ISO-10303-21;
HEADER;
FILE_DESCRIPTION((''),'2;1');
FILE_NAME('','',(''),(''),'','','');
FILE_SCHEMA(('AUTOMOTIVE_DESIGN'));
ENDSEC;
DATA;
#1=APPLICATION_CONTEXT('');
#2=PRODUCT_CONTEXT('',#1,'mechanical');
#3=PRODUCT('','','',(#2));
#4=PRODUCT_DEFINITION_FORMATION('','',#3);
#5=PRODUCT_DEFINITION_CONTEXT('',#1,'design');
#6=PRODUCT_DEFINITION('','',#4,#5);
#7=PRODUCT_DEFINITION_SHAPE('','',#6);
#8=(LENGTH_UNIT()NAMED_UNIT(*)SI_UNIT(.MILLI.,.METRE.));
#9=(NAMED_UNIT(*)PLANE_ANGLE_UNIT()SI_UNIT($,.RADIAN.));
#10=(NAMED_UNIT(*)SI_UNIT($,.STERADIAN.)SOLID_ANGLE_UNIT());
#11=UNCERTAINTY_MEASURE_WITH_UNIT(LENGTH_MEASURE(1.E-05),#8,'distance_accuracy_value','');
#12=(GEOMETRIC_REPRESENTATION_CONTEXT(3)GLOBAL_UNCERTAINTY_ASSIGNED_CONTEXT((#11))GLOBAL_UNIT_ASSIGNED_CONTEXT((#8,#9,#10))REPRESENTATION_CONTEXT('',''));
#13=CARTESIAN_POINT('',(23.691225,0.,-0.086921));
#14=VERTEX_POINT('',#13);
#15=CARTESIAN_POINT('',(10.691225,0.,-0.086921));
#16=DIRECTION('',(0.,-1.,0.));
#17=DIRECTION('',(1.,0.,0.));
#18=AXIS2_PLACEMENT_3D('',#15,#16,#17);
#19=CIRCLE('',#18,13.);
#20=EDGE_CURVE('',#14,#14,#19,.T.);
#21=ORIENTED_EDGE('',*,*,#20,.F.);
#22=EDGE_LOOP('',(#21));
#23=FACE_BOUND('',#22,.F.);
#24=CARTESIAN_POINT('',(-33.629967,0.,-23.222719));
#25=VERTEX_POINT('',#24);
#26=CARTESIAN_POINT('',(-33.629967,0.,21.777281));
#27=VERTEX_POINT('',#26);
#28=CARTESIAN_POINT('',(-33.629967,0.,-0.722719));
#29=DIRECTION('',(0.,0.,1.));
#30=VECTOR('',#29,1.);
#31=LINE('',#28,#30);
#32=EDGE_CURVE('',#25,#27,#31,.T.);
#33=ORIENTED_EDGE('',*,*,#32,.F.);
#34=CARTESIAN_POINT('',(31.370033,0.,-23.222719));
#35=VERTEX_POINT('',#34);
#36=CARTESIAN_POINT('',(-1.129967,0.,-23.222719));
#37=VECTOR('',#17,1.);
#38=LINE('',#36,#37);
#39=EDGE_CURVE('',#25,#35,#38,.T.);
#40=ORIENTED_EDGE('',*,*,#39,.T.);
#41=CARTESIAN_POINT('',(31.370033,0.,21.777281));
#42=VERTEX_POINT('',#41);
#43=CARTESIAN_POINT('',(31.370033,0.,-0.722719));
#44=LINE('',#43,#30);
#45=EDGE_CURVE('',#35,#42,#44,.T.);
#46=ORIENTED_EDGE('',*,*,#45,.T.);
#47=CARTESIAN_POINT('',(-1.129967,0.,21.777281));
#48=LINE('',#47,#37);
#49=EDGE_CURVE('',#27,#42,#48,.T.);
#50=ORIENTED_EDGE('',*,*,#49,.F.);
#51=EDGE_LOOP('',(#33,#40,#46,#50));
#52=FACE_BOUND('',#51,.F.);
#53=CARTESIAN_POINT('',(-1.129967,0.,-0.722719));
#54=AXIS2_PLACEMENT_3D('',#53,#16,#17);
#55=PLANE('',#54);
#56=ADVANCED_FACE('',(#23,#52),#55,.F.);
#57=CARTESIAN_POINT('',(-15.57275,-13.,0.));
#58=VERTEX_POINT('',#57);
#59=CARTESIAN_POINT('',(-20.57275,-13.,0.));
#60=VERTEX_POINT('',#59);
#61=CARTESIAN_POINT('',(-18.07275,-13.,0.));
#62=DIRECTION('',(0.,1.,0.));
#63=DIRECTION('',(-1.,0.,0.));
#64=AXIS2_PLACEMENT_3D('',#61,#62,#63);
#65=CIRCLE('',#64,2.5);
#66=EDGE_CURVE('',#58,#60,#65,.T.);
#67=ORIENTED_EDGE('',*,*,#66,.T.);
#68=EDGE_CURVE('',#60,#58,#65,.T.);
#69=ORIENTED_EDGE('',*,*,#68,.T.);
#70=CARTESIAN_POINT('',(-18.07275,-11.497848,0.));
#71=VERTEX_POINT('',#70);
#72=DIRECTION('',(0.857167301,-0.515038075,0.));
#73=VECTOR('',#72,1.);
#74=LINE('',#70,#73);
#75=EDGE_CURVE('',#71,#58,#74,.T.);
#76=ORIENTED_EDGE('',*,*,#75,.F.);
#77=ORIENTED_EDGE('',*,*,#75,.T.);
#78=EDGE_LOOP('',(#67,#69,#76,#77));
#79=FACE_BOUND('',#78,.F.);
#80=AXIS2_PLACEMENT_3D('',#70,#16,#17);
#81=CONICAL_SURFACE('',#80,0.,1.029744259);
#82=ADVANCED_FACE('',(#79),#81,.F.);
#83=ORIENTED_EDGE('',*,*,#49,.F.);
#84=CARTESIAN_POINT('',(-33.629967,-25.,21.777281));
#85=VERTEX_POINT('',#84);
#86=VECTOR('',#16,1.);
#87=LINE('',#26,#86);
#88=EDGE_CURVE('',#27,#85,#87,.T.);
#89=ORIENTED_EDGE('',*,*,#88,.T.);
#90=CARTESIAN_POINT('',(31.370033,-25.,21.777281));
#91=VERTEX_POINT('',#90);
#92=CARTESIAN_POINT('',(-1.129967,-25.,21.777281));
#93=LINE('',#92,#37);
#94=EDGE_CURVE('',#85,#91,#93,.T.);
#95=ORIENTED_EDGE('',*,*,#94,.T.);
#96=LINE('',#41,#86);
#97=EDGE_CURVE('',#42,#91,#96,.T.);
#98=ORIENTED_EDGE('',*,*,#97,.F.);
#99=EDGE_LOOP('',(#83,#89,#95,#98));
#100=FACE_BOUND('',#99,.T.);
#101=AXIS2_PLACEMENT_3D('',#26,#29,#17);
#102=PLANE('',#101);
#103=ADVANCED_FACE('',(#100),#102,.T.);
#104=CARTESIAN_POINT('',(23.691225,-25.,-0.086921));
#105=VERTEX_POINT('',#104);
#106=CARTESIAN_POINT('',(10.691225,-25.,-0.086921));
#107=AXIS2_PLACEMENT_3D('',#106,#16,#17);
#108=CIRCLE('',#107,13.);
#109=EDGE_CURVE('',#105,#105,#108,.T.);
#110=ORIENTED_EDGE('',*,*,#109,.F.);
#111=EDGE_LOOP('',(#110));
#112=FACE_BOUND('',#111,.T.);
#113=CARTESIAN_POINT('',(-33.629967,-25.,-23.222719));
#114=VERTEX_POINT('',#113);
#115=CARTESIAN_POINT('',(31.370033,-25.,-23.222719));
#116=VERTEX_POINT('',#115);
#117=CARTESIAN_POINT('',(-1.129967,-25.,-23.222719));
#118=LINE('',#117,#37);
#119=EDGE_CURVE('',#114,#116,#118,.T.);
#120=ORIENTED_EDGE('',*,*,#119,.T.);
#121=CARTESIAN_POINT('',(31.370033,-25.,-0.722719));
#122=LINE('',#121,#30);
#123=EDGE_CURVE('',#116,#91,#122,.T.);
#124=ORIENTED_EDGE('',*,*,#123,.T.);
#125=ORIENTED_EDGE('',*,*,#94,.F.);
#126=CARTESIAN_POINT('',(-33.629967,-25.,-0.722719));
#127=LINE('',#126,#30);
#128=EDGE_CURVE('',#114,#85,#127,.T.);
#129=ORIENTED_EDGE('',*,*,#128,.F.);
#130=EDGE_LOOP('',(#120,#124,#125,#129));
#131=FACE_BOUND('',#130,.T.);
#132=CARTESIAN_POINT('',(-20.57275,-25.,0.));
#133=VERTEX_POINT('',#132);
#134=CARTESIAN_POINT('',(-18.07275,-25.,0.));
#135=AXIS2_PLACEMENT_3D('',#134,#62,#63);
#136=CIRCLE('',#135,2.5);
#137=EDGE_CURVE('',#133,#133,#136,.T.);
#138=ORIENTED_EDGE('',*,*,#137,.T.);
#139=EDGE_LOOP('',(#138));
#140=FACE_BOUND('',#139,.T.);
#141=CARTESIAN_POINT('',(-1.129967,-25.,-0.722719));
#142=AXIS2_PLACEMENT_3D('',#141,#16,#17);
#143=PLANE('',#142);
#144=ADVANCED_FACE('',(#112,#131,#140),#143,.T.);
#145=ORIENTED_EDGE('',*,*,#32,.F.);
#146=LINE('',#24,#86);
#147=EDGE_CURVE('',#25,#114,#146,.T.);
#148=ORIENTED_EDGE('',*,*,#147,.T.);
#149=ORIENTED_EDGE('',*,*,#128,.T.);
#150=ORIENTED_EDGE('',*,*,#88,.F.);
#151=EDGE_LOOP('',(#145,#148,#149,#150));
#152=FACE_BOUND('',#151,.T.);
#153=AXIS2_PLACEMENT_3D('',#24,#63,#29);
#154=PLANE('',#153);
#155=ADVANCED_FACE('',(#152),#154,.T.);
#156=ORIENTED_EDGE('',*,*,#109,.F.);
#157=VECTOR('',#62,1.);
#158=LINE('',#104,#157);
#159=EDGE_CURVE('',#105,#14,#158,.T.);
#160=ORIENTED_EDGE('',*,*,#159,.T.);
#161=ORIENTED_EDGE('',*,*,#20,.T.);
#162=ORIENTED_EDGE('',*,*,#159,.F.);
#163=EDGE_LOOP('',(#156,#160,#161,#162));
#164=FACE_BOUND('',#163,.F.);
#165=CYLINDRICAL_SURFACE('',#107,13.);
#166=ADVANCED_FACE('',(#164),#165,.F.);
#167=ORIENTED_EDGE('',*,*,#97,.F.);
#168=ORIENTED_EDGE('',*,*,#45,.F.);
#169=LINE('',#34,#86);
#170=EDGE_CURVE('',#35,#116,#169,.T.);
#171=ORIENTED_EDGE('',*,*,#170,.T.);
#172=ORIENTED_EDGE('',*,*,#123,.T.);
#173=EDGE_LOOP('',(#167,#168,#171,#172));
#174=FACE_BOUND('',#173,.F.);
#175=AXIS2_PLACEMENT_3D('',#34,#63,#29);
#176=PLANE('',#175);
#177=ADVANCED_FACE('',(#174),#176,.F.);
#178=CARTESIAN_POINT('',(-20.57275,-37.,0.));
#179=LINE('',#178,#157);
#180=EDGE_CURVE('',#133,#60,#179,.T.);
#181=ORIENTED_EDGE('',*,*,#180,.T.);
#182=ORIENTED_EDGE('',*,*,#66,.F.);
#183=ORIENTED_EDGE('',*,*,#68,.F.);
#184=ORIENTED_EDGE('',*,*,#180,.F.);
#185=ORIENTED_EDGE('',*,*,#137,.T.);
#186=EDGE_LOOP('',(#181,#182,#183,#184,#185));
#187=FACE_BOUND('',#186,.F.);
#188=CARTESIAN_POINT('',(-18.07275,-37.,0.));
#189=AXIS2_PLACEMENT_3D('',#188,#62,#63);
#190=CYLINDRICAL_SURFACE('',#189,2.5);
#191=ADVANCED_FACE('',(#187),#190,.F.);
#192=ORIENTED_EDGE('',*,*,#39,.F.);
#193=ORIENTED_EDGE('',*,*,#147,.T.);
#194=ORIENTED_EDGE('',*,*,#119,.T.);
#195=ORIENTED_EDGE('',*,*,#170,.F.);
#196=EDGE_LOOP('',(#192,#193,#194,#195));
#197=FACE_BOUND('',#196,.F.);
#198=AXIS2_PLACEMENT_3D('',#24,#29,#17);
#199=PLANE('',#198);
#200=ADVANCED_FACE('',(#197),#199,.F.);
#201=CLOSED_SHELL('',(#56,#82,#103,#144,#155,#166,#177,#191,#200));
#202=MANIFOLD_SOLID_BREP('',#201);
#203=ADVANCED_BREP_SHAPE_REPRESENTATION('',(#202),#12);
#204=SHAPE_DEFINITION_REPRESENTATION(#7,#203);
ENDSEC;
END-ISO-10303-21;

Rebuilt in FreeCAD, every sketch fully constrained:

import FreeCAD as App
import Part
import Sketcher

V = App.Vector

doc = App.newDocument("Part")
body = doc.addObject("PartDesign::Body", "Body")

sketch1 = doc.addObject("Sketcher::SketchObject", "Sketch")
body.addObject(sketch1)
sketch1.AttachmentSupport = (doc.XZ_Plane, [""])
sketch1.MapMode = "FlatFace"
sketch1.addGeometry(Part.LineSegment(V(-34, 22, 0), V(-34, -23, 0)), False)
sketch1.addGeometry(Part.LineSegment(V(-34, -23, 0), V(31, -23, 0)), False)
sketch1.addGeometry(Part.LineSegment(V(31, -23, 0), V(31, 22, 0)), False)
sketch1.addGeometry(Part.LineSegment(V(31, 22, 0), V(-34, 22, 0)), False)
sketch1.addConstraint(Sketcher.Constraint("Coincident", 0, 2, 1, 1))
sketch1.addConstraint(Sketcher.Constraint("Coincident", 1, 2, 2, 1))
sketch1.addConstraint(Sketcher.Constraint("Coincident", 2, 2, 3, 1))
sketch1.addConstraint(Sketcher.Constraint("Coincident", 3, 2, 0, 1))
sketch1.addConstraint(Sketcher.Constraint("Vertical", 0))
sketch1.addConstraint(Sketcher.Constraint("Horizontal", 1))
sketch1.addConstraint(Sketcher.Constraint("Vertical", 2))
sketch1.addConstraint(Sketcher.Constraint("Horizontal", 3))
sketch1.addConstraint(Sketcher.Constraint("DistanceX", 1, 1, 1, 2, 65.0))
sketch1.addConstraint(Sketcher.Constraint("DistanceY", 0, 2, 0, 1, 45.0))
sketch1.addConstraint(Sketcher.Constraint("DistanceY", 0, 2, -1, 1, 23.222719))
sketch1.addConstraint(Sketcher.Constraint("DistanceX", 0, 2, -1, 1, 33.629967))
pad1 = doc.addObject("PartDesign::Pad", "Pad")
body.addObject(pad1)
pad1.Profile = sketch1
pad1.Length = 25

sketch2 = doc.addObject("Sketcher::SketchObject", "Sketch001")
body.addObject(sketch2)
sketch2.AttachmentSupport = (doc.XZ_Plane, [""])
sketch2.MapMode = "FlatFace"
sketch2.AttachmentOffset = App.Placement(V(0, 0, 25), App.Rotation())
sketch2.addGeometry(Part.Circle(V(-18.1, 0, 0), V(0, 0, 1), 2.5), False)
sketch2.addConstraint(Sketcher.Constraint("PointOnObject", 0, 3, -1))
sketch2.addConstraint(Sketcher.Constraint("Diameter", 0, 5.0))
sketch2.addConstraint(Sketcher.Constraint("DistanceX", 0, 3, -1, 1, 18.07275))
doc.recompute()
hole = doc.addObject("PartDesign::Hole", "Hole")
body.addObject(hole)
hole.Profile = sketch2
hole.ThreadType = "None"
hole.Diameter = 5
hole.DepthType = "Dimension"
hole.Depth = 12
hole.DrillPoint = "Angled"
hole.DrillPointAngle = 118

sketch3 = doc.addObject("Sketcher::SketchObject", "Sketch002")
body.addObject(sketch3)
sketch3.AttachmentSupport = (doc.XZ_Plane, [""])
sketch3.MapMode = "FlatFace"
sketch3.AttachmentOffset = App.Placement(V(0, 0, 25), App.Rotation())
sketch3.addGeometry(Part.Circle(V(11, 0, 0), V(0, 0, 1), 13), False)
sketch3.addConstraint(Sketcher.Constraint("Diameter", 0, 26.0))
sketch3.addConstraint(Sketcher.Constraint("DistanceY", 0, 3, -1, 1, 0.086921))
sketch3.addConstraint(Sketcher.Constraint("DistanceX", -1, 1, 0, 3, 10.691225))
pocket1 = doc.addObject("PartDesign::Pocket", "Pocket")
body.addObject(pocket1)
pocket1.Profile = sketch3
pocket1.Type = "ThroughAll"

doc.recompute()
